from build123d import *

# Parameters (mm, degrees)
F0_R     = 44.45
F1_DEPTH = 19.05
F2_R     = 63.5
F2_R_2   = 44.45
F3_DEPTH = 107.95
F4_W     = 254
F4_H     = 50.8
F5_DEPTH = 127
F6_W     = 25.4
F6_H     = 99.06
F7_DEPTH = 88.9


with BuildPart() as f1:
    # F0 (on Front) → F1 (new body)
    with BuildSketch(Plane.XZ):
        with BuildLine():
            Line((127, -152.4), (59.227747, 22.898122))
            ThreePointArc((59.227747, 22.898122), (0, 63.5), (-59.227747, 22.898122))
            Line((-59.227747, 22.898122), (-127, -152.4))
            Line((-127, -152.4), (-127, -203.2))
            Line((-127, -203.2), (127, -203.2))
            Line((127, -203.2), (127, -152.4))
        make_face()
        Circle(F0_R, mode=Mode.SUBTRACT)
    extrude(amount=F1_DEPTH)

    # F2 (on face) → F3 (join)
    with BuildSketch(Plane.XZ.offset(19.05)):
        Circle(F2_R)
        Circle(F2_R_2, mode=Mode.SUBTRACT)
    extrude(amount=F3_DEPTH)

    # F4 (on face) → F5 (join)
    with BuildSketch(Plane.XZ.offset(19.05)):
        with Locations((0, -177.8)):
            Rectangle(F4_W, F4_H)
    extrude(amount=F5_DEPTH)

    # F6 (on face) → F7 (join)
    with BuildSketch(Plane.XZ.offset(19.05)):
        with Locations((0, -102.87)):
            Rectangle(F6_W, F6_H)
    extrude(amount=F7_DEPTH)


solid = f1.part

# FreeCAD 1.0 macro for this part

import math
import FreeCAD as App
import Part
import Sketcher
from FreeCAD import Vector
Q = App.Units.Quantity

doc = App.newDocument("Part")
params = doc.addObject("Spreadsheet::Sheet", "Params")
for row, (alias, value) in enumerate([
    ("sketch1_diameter", "3.5 in"),
    ("sketch1_radius", "2.5 in"),
    ("sketch1_width", "10 in"),
    ("sketch1_height", "2 in"),
    ("pad1_length", "0.75 in"),
    ("sketch2_diameter", "5 in"),
    ("sketch2_diameter2", "3.5 in"),
    ("pad2_length", "4.25 in"),
    ("sketch3_width", "10 in"),
    ("sketch3_height", "2 in"),
    ("pad3_length", "5 in"),
    ("sketch4_width", "1 in"),
    ("sketch4_height", "3.9 in"),
    ("pad4_length", "3.5 in"),
], start=1):
    params.set(f"A{row}", alias)
    params.set(f"B{row}", "=" + value)
    params.setAlias(f"B{row}", alias)

body = doc.addObject("PartDesign::Body", "Body")

# Sketch on XZ plane
sketch1 = body.newObject("Sketcher::SketchObject", "Sketch")
sketch1.AttachmentSupport = (doc.getObject("XZ_Plane"), [""])
sketch1.MapMode = "FlatFace"
sketch1.addGeometry([
    Part.LineSegment(Vector(127, -152, 0), Vector(59, 23, 0)),  # 0
    Part.ArcOfCircle(Part.Circle(Vector(0, 0, 0), Vector(0, 0, 1), 64), math.radians(21), math.radians(159)),  # 1
    Part.LineSegment(Vector(-59, 23, 0), Vector(-127, -152, 0)),  # 2
    Part.LineSegment(Vector(-127, -152, 0), Vector(-127, -203, 0)),  # 3
    Part.LineSegment(Vector(-127, -203, 0), Vector(127, -203, 0)),  # 4
    Part.LineSegment(Vector(127, -203, 0), Vector(127, -152, 0)),  # 5
    Part.Circle(Vector(0, 0, 0), Vector(0, 0, 1), 44),  # 6
], False)
sketch1.addConstraint([
    Sketcher.Constraint("Tangent", 0, 2, 1, 1),
    Sketcher.Constraint("Tangent", 1, 2, 2, 1),
    Sketcher.Constraint("Coincident", 2, 2, 3, 1),
    Sketcher.Constraint("Coincident", 3, 2, 4, 1),
    Sketcher.Constraint("Coincident", 4, 2, 5, 1),
    Sketcher.Constraint("Coincident", 5, 2, 0, 1),
    Sketcher.Constraint("Vertical", 3),
    Sketcher.Constraint("Horizontal", 4),
    Sketcher.Constraint("Vertical", 5),
    Sketcher.Constraint("Coincident", 1, 3, -1, 1),
    Sketcher.Constraint("Coincident", 6, 3, -1, 1),
    Sketcher.Constraint("Symmetric", 2, 2, 5, 2, -2),
    Sketcher.Constraint("Diameter", 6, Q("3.5 in")),
    Sketcher.Constraint("Radius", 1, Q("2.5 in")),
    Sketcher.Constraint("DistanceX", 4, 1, 4, 2, Q("10 in")),
    Sketcher.Constraint("DistanceY", 3, 2, 3, 1, Q("2 in")),
    Sketcher.Constraint("DistanceY", 2, 2, -1, 1, Q("6 in")),
])
sketch1.setExpression("Constraints[12]", "Params.sketch1_diameter")
sketch1.setExpression("Constraints[13]", "Params.sketch1_radius")
sketch1.setExpression("Constraints[14]", "Params.sketch1_width")
sketch1.setExpression("Constraints[15]", "Params.sketch1_height")
pad1 = body.newObject("PartDesign::Pad", "Pad")
pad1.Profile = sketch1
pad1.setExpression("Length", "Params.pad1_length")

# Sketch on XZ plane
sketch2 = body.newObject("Sketcher::SketchObject", "Sketch001")
sketch2.AttachmentSupport = (doc.getObject("XZ_Plane"), [""])
sketch2.MapMode = "FlatFace"
sketch2.AttachmentOffset = App.Placement(Vector(0, 0, 0.75 * 25.4), App.Rotation())
sketch2.addGeometry([
    Part.Circle(Vector(0, 0, 0), Vector(0, 0, 1), 64),
    Part.Circle(Vector(0, 0, 0), Vector(0, 0, 1), 44),
], False)
sketch2.addConstraint([
    Sketcher.Constraint("Coincident", 0, 3, -1, 1),
    Sketcher.Constraint("Coincident", 1, 3, -1, 1),
    Sketcher.Constraint("Diameter", 0, Q("5 in")),
    Sketcher.Constraint("Diameter", 1, Q("3.5 in")),
])
sketch2.setExpression("Constraints[2]", "Params.sketch2_diameter")
sketch2.setExpression("Constraints[3]", "Params.sketch2_diameter2")
pad2 = body.newObject("PartDesign::Pad", "Pad001")
pad2.Profile = sketch2
pad2.setExpression("Length", "Params.pad2_length")

# Sketch on XZ plane
sketch3 = body.newObject("Sketcher::SketchObject", "Sketch002")
sketch3.AttachmentSupport = (doc.getObject("XZ_Plane"), [""])
sketch3.MapMode = "FlatFace"
sketch3.AttachmentOffset = App.Placement(Vector(0, 0, 0.75 * 25.4), App.Rotation())
sketch3.addGeometry([
    Part.LineSegment(Vector(-127, -152, 0), Vector(-127, -203, 0)),
    Part.LineSegment(Vector(-127, -203, 0), Vector(127, -203, 0)),
    Part.LineSegment(Vector(127, -203, 0), Vector(127, -152, 0)),
    Part.LineSegment(Vector(127, -152, 0), Vector(-127, -152, 0)),
], False)
sketch3.addConstraint([
    Sketcher.Constraint("Coincident", 0, 2, 1, 1),
    Sketcher.Constraint("Coincident", 1, 2, 2, 1),
    Sketcher.Constraint("Coincident", 2, 2, 3, 1),
    Sketcher.Constraint("Coincident", 3, 2, 0, 1),
    Sketcher.Constraint("Vertical", 0),
    Sketcher.Constraint("Horizontal", 1),
    Sketcher.Constraint("Vertical", 2),
    Sketcher.Constraint("Horizontal", 3),
    Sketcher.Constraint("DistanceX", 1, 1, 1, 2, Q("10 in")),
    Sketcher.Constraint("DistanceY", 0, 2, 0, 1, Q("2 in")),
    Sketcher.Constraint("DistanceX", 0, 2, -1, 1, Q("5 in")),
    Sketcher.Constraint("DistanceY", 0, 2, -1, 1, Q("8 in")),
])
sketch3.setExpression("Constraints[8]", "Params.sketch3_width")
sketch3.setExpression("Constraints[9]", "Params.sketch3_height")
pad3 = body.newObject("PartDesign::Pad", "Pad002")
pad3.Profile = sketch3
pad3.setExpression("Length", "Params.pad3_length")

# Sketch on XZ plane
sketch4 = body.newObject("Sketcher::SketchObject", "Sketch003")
sketch4.AttachmentSupport = (doc.getObject("XZ_Plane"), [""])
sketch4.MapMode = "FlatFace"
sketch4.AttachmentOffset = App.Placement(Vector(0, 0, 0.75 * 25.4), App.Rotation())
sketch4.addGeometry([
    Part.LineSegment(Vector(-13, -53, 0), Vector(-13, -152, 0)),
    Part.LineSegment(Vector(-13, -152, 0), Vector(13, -152, 0)),
    Part.LineSegment(Vector(13, -152, 0), Vector(13, -53, 0)),
    Part.LineSegment(Vector(13, -53, 0), Vector(-13, -53, 0)),
], False)
sketch4.addConstraint([
    Sketcher.Constraint("Coincident", 0, 2, 1, 1),
    Sketcher.Constraint("Coincident", 1, 2, 2, 1),
    Sketcher.Constraint("Coincident", 2, 2, 3, 1),
    Sketcher.Constraint("Coincident", 3, 2, 0, 1),
    Sketcher.Constraint("Vertical", 0),
    Sketcher.Constraint("Horizontal", 1),
    Sketcher.Constraint("Vertical", 2),
    Sketcher.Constraint("Horizontal", 3),
    Sketcher.Constraint("DistanceX", 1, 1, 1, 2, Q("1 in")),
    Sketcher.Constraint("DistanceY", 0, 2, 0, 1, Q("3.9 in")),
    Sketcher.Constraint("DistanceY", 0, 2, -1, 1, Q("6 in")),
    Sketcher.Constraint("DistanceX", 0, 2, -1, 1, Q("0.5 in")),
])
sketch4.setExpression("Constraints[8]", "Params.sketch4_width")
sketch4.setExpression("Constraints[9]", "Params.sketch4_height")
pad4 = body.newObject("PartDesign::Pad", "Pad003")
pad4.Profile = sketch4
pad4.setExpression("Length", "Params.pad4_length")

doc.recompute()
